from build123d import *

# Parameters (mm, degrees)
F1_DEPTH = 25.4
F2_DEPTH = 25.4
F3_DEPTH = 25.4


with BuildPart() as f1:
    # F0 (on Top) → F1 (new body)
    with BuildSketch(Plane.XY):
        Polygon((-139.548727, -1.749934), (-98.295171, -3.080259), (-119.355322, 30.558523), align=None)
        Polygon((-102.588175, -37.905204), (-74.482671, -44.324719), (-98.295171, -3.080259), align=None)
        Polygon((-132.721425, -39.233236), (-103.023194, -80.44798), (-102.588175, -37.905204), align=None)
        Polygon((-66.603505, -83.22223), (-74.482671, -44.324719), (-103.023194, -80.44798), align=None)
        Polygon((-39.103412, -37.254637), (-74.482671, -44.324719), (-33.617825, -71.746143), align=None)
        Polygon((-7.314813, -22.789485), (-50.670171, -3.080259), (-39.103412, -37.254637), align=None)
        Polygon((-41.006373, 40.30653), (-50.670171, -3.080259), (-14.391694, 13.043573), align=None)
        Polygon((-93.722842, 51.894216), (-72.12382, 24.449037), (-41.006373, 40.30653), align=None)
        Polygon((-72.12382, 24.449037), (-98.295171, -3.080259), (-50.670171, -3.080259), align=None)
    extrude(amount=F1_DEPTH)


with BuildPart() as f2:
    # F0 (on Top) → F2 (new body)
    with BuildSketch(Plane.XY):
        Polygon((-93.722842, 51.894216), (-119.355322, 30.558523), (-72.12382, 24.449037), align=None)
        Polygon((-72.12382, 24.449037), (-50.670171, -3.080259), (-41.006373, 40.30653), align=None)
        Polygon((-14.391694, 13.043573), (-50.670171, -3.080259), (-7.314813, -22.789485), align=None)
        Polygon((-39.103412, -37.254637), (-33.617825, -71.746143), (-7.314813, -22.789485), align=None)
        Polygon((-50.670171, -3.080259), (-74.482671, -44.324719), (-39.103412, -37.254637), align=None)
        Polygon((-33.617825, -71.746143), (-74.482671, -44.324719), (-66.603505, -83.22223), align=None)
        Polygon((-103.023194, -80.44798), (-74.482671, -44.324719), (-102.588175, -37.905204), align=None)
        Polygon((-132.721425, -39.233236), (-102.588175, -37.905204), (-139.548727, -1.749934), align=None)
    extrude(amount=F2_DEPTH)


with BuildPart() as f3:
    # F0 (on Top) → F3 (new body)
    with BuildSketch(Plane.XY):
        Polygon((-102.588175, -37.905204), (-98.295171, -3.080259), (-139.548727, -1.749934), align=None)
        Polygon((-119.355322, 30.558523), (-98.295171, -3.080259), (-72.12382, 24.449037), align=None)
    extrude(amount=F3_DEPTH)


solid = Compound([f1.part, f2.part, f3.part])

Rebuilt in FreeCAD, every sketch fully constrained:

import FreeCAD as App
import Part
import Sketcher
Q = App.Units.Quantity


def add_polygon(sketch, points):
    """Adds a closed chain of lines whose ends are joined by coincident constraints."""
    first, n = sketch.GeometryCount, len(points)
    for a, b in zip(points, points[1:] + points[:1]):
        sketch.addGeometry(Part.LineSegment(App.Vector(*a, 0), App.Vector(*b, 0)), False)
    for i in range(n):
        sketch.addConstraint(Sketcher.Constraint("Coincident", first + i, 2, first + (i + 1) % n, 1))

doc = App.newDocument("Part")
body = doc.addObject("PartDesign::Body", "Body")
body.AllowCompound = True

# Sketch on XY plane
sketch1 = doc.addObject("Sketcher::SketchObject", "Sketch")
body.addObject(sketch1)
sketch1.AttachmentSupport = (doc.XY_Plane, [""])
sketch1.MapMode = "FlatFace"
add_polygon(sketch1, [(-140, -2), (-98, -3), (-119, 31)])  # lines 0-2
add_polygon(sketch1, [(-103, -38), (-74, -44), (-98, -3)])  # lines 3-5
add_polygon(sketch1, [(-133, -39), (-103, -80), (-103, -38)])  # lines 6-8
add_polygon(sketch1, [(-67, -83), (-74, -44), (-103, -80)])  # lines 9-11
add_polygon(sketch1, [(-39, -37), (-74, -44), (-34, -72)])  # lines 12-14
add_polygon(sketch1, [(-7, -23), (-51, -3), (-39, -37)])  # lines 15-17
add_polygon(sketch1, [(-41, 40), (-51, -3), (-14, 13)])  # lines 18-20
add_polygon(sketch1, [(-94, 52), (-72, 24), (-41, 40)])  # lines 21-23
add_polygon(sketch1, [(-72, 24), (-98, -3), (-51, -3)])  # lines 24-26
sketch1.addConstraint(Sketcher.Constraint("Horizontal", 25))
sketch1.addConstraint(Sketcher.Constraint("Coincident", 4, 2, 0, 2))
sketch1.addConstraint(Sketcher.Constraint("Coincident", 7, 2, 5, 2))
sketch1.addConstraint(Sketcher.Constraint("Coincident", 9, 2, 3, 2))
sketch1.addConstraint(Sketcher.Constraint("Coincident", 10, 2, 6, 2))
sketch1.addConstraint(Sketcher.Constraint("Coincident", 12, 2, 3, 2))
sketch1.addConstraint(Sketcher.Constraint("Coincident", 16, 2, 14, 2))
sketch1.addConstraint(Sketcher.Constraint("Coincident", 18, 2, 15, 2))
sketch1.addConstraint(Sketcher.Constraint("Coincident", 22, 2, 20, 2))
sketch1.addConstraint(Sketcher.Constraint("Coincident", 24, 2, 0, 2))
sketch1.addConstraint(Sketcher.Constraint("Coincident", 25, 2, 15, 2))
sketch1.addConstraint(Sketcher.Constraint("Coincident", 26, 2, 21, 2))
sketch1.addConstraint(Sketcher.Constraint("Equal", 1, 9))
sketch1.addConstraint(Sketcher.Constraint("Equal", 4, 15))
sketch1.addConstraint(Sketcher.Constraint("Equal", 12, 16))
sketch1.addConstraint(Sketcher.Constraint("Equal", 14, 17))
sketch1.addConstraint(Sketcher.Constraint("Equal", 2, 20))
sketch1.addConstraint(Sketcher.Constraint("Equal", 17, 21))
sketch1.addConstraint(Sketcher.Constraint("Equal", 21, 22))
sketch1.addConstraint(Sketcher.Constraint("Distance", 6, Q("2 in")))
sketch1.addConstraint(Sketcher.Constraint("Angle", 4, Q("120 deg")))
sketch1.addConstraint(Sketcher.Constraint("Distance", 2, Q("1.5 in")))
sketch1.addConstraint(Sketcher.Constraint("Distance", 18, Q("1.75 in")))
sketch1.addConstraint(Sketcher.Constraint("DistanceX", 25, 1, 25, 2, Q("1.875 in")))
sketch1.addConstraint(Sketcher.Constraint("Distance", 0, Q("1.625 in")))
sketch1.addConstraint(Sketcher.Constraint("Distance", 1, Q("1.5625 in")))
sketch1.addConstraint(Sketcher.Constraint("Distance", 4, Q("1.875 in")))
sketch1.addConstraint(Sketcher.Constraint("Distance", 7, Q("1.675 in")))
sketch1.addConstraint(Sketcher.Constraint("Distance", 8, Q("1.1875 in")))
sketch1.addConstraint(Sketcher.Constraint("Distance", 10, Q("1.8125 in")))
sketch1.addConstraint(Sketcher.Constraint("Distance", 11, Q("1.438 in")))
sketch1.addConstraint(Sketcher.Constraint("Distance", 13, Q("1.9375 in")))
sketch1.addConstraint(Sketcher.Constraint("Distance", 14, Q("1.375 in")))
sketch1.addConstraint(Sketcher.Constraint("Distance", 19, Q("1.563 in")))
sketch1.addConstraint(Sketcher.Constraint("Distance", 23, Q("2.125 in")))
sketch1.addConstraint(Sketcher.Constraint("DistanceY", 8, 2, 2, 2, Q("37.483302 mm")))
sketch1.addConstraint(Sketcher.Constraint("DistanceX", 14, 2, 17, 2, Q("31.788599 mm")))
sketch1.addConstraint(Sketcher.Constraint("Distance", 24, Q("37.98423 mm")))
sketch1.addConstraint(Sketcher.Constraint("DistanceX", 0, 2, -1, 1, Q("98.295171 mm")))
sketch1.addConstraint(Sketcher.Constraint("DistanceY", 0, 2, -1, 1, Q("3.080259 mm")))
sketch1.addConstraint(Sketcher.Constraint("DistanceX", 1, 2, -1, 1, Q("119.355322 mm")))
sketch1.addConstraint(Sketcher.Constraint("DistanceY", 6, 2, -1, 1, Q("80.44798 mm")))
sketch1.addConstraint(Sketcher.Constraint("DistanceY", -1, 1, 20, 2, Q("40.30653 mm")))
pad1 = doc.addObject("PartDesign::Pad", "Pad")
body.addObject(pad1)
pad1.Profile = sketch1
pad1.Length = Q("1 in")
body2 = doc.addObject("PartDesign::Body", "Body001")
body2.AllowCompound = True

# Sketch on XY plane
sketch2 = doc.addObject("Sketcher::SketchObject", "Sketch001")
body2.addObject(sketch2)
sketch2.AttachmentSupport = (doc.getObject("XY_Plane001"), [""])
sketch2.MapMode = "FlatFace"
add_polygon(sketch2, [(-94, 52), (-119, 31), (-72, 24)])  # lines 0-2
add_polygon(sketch2, [(-72, 24), (-51, -3), (-41, 40)])  # lines 3-5
add_polygon(sketch2, [(-14, 13), (-51, -3), (-7, -23)])  # lines 6-8
add_polygon(sketch2, [(-39, -37), (-34, -72), (-7, -23)])  # lines 9-11
add_polygon(sketch2, [(-51, -3), (-74, -44), (-39, -37)])  # lines 12-14
add_polygon(sketch2, [(-34, -72), (-74, -44), (-67, -83)])  # lines 15-17
add_polygon(sketch2, [(-103, -80), (-74, -44), (-103, -38)])  # lines 18-20
add_polygon(sketch2, [(-133, -39), (-103, -38), (-140, -2)])  # lines 21-23
sketch2.addConstraint(Sketcher.Constraint("Coincident", 5, 2, 1, 2))
sketch2.addConstraint(Sketcher.Constraint("Coincident", 6, 2, 3, 2))
sketch2.addConstraint(Sketcher.Constraint("Coincident", 10, 2, 7, 2))
sketch2.addConstraint(Sketcher.Constraint("Coincident", 13, 2, 11, 2))
sketch2.addConstraint(Sketcher.Constraint("Coincident", 14, 2, 3, 2))
sketch2.addConstraint(Sketcher.Constraint("Coincident", 15, 2, 12, 2))
sketch2.addConstraint(Sketcher.Constraint("Coincident", 17, 2, 9, 2))
sketch2.addConstraint(Sketcher.Constraint("Coincident", 18, 2, 12, 2))
sketch2.addConstraint(Sketcher.Constraint("Coincident", 21, 2, 19, 2))
sketch2.addConstraint(Sketcher.Constraint("Equal", 2, 5))
sketch2.addConstraint(Sketcher.Constraint("Equal", 1, 7))
sketch2.addConstraint(Sketcher.Constraint("Equal", 5, 9))
sketch2.addConstraint(Sketcher.Constraint("Equal", 9, 11))
sketch2.addConstraint(Sketcher.Constraint("Equal", 7, 12))
sketch2.addConstraint(Sketcher.Constraint("Equal", 13, 14))
sketch2.addConstraint(Sketcher.Constraint("Equal", 11, 17))
sketch2.addConstraint(Sketcher.Constraint("Angle", 12, Q("-120 deg")))
sketch2.addConstraint(Sketcher.Constraint("Distance", 23, Q("1.5 in")))
sketch2.addConstraint(Sketcher.Constraint("Distance", 4, Q("1.75 in")))
sketch2.addConstraint(Sketcher.Constraint("Distance", 0, Q("1.313 in")))
sketch2.addConstraint(Sketcher.Constraint("Distance", 1, Q("1.875 in")))
sketch2.addConstraint(Sketcher.Constraint("Distance", 2, Q("1.375 in")))
sketch2.addConstraint(Sketcher.Constraint("Distance", 6, Q("1.563 in")))
sketch2.addConstraint(Sketcher.Constraint("Distance", 8, Q("1.438 in")))
sketch2.addConstraint(Sketcher.Constraint("Distance", 10, Q("2.188 in")))
sketch2.addConstraint(Sketcher.Constraint("Distance", 15, Q("1.9375 in")))
sketch2.addConstraint(Sketcher.Constraint("Distance", 16, Q("1.5625 in")))
sketch2.addConstraint(Sketcher.Constraint("Distance", 18, Q("1.8125 in")))
sketch2.addConstraint(Sketcher.Constraint("Distance", 20, Q("1.675 in")))
sketch2.addConstraint(Sketcher.Constraint("Distance", 21, Q("1.1875 in")))
sketch2.addConstraint(Sketcher.Constraint("DistanceY", 23, 2, 22, 2, Q("37.483302 mm")))
sketch2.addConstraint(Sketcher.Constraint("Distance", 22, Q("51.703829 mm")))
sketch2.addConstraint(Sketcher.Constraint("DistanceX", 0, 2, -1, 1, Q("119.355322 mm")))
sketch2.addConstraint(Sketcher.Constraint("DistanceX", 1, 2, -1, 1, Q("72.12382 mm")))
sketch2.addConstraint(Sketcher.Constraint("DistanceX", 3, 2, -1, 1, Q("50.670171 mm")))
sketch2.addConstraint(Sketcher.Constraint("DistanceY", 3, 2, -1, 1, Q("3.080259 mm")))
sketch2.addConstraint(Sketcher.Constraint("DistanceY", -1, 1, 4, 2, Q("40.30653 mm")))
sketch2.addConstraint(Sketcher.Constraint("DistanceY", 20, 2, -1, 1, Q("80.44798 mm")))
sketch2.addConstraint(Sketcher.Constraint("DistanceX", 19, 2, 16, 2, Q("35.98467 mm")))
pad2 = doc.addObject("PartDesign::Pad", "Pad001")
body2.addObject(pad2)
pad2.Profile = sketch2
pad2.Length = Q("1 in")
body3 = doc.addObject("PartDesign::Body", "Body002")
body3.AllowCompound = True

# Sketch on XY plane
sketch3 = doc.addObject("Sketcher::SketchObject", "Sketch002")
body3.addObject(sketch3)
sketch3.AttachmentSupport = (doc.getObject("XY_Plane002"), [""])
sketch3.MapMode = "FlatFace"
add_polygon(sketch3, [(-103, -38), (-98, -3), (-140, -2)])  # lines 0-2
add_polygon(sketch3, [(-119, 31), (-98, -3), (-72, 24)])  # lines 3-5
sketch3.addConstraint(Sketcher.Constraint("Coincident", 3, 2, 0, 2))
sketch3.addConstraint(Sketcher.Constraint("Distance", 1, Q("1.625 in")))
sketch3.addConstraint(Sketcher.Constraint("Distance", 3, Q("1.5625 in")))
sketch3.addConstraint(Sketcher.Constraint("Distance", 5, Q("1.875 in")))
sketch3.addConstraint(Sketcher.Constraint("Distance", 2, Q("51.703829 mm")))
sketch3.addConstraint(Sketcher.Constraint("Distance", 4, Q("37.98423 mm")))
sketch3.addConstraint(Sketcher.Constraint("DistanceX", 0, 2, -1, 1, Q("98.295171 mm")))
sketch3.addConstraint(Sketcher.Constraint("DistanceY", 0, 2, -1, 1, Q("3.080259 mm")))
sketch3.addConstraint(Sketcher.Constraint("DistanceX", 4, 2, -1, 1, Q("72.12382 mm")))
sketch3.addConstraint(Sketcher.Constraint("DistanceY", 2, 2, 1, 2, Q("36.15527 mm")))
sketch3.addConstraint(Sketcher.Constraint("DistanceY", 2, 2, 4, 2, Q("62.354241 mm")))
pad3 = doc.addObject("PartDesign::Pad", "Pad002")
body3.addObject(pad3)
pad3.Profile = sketch3
pad3.Length = Q("1 in")

doc.recompute()
